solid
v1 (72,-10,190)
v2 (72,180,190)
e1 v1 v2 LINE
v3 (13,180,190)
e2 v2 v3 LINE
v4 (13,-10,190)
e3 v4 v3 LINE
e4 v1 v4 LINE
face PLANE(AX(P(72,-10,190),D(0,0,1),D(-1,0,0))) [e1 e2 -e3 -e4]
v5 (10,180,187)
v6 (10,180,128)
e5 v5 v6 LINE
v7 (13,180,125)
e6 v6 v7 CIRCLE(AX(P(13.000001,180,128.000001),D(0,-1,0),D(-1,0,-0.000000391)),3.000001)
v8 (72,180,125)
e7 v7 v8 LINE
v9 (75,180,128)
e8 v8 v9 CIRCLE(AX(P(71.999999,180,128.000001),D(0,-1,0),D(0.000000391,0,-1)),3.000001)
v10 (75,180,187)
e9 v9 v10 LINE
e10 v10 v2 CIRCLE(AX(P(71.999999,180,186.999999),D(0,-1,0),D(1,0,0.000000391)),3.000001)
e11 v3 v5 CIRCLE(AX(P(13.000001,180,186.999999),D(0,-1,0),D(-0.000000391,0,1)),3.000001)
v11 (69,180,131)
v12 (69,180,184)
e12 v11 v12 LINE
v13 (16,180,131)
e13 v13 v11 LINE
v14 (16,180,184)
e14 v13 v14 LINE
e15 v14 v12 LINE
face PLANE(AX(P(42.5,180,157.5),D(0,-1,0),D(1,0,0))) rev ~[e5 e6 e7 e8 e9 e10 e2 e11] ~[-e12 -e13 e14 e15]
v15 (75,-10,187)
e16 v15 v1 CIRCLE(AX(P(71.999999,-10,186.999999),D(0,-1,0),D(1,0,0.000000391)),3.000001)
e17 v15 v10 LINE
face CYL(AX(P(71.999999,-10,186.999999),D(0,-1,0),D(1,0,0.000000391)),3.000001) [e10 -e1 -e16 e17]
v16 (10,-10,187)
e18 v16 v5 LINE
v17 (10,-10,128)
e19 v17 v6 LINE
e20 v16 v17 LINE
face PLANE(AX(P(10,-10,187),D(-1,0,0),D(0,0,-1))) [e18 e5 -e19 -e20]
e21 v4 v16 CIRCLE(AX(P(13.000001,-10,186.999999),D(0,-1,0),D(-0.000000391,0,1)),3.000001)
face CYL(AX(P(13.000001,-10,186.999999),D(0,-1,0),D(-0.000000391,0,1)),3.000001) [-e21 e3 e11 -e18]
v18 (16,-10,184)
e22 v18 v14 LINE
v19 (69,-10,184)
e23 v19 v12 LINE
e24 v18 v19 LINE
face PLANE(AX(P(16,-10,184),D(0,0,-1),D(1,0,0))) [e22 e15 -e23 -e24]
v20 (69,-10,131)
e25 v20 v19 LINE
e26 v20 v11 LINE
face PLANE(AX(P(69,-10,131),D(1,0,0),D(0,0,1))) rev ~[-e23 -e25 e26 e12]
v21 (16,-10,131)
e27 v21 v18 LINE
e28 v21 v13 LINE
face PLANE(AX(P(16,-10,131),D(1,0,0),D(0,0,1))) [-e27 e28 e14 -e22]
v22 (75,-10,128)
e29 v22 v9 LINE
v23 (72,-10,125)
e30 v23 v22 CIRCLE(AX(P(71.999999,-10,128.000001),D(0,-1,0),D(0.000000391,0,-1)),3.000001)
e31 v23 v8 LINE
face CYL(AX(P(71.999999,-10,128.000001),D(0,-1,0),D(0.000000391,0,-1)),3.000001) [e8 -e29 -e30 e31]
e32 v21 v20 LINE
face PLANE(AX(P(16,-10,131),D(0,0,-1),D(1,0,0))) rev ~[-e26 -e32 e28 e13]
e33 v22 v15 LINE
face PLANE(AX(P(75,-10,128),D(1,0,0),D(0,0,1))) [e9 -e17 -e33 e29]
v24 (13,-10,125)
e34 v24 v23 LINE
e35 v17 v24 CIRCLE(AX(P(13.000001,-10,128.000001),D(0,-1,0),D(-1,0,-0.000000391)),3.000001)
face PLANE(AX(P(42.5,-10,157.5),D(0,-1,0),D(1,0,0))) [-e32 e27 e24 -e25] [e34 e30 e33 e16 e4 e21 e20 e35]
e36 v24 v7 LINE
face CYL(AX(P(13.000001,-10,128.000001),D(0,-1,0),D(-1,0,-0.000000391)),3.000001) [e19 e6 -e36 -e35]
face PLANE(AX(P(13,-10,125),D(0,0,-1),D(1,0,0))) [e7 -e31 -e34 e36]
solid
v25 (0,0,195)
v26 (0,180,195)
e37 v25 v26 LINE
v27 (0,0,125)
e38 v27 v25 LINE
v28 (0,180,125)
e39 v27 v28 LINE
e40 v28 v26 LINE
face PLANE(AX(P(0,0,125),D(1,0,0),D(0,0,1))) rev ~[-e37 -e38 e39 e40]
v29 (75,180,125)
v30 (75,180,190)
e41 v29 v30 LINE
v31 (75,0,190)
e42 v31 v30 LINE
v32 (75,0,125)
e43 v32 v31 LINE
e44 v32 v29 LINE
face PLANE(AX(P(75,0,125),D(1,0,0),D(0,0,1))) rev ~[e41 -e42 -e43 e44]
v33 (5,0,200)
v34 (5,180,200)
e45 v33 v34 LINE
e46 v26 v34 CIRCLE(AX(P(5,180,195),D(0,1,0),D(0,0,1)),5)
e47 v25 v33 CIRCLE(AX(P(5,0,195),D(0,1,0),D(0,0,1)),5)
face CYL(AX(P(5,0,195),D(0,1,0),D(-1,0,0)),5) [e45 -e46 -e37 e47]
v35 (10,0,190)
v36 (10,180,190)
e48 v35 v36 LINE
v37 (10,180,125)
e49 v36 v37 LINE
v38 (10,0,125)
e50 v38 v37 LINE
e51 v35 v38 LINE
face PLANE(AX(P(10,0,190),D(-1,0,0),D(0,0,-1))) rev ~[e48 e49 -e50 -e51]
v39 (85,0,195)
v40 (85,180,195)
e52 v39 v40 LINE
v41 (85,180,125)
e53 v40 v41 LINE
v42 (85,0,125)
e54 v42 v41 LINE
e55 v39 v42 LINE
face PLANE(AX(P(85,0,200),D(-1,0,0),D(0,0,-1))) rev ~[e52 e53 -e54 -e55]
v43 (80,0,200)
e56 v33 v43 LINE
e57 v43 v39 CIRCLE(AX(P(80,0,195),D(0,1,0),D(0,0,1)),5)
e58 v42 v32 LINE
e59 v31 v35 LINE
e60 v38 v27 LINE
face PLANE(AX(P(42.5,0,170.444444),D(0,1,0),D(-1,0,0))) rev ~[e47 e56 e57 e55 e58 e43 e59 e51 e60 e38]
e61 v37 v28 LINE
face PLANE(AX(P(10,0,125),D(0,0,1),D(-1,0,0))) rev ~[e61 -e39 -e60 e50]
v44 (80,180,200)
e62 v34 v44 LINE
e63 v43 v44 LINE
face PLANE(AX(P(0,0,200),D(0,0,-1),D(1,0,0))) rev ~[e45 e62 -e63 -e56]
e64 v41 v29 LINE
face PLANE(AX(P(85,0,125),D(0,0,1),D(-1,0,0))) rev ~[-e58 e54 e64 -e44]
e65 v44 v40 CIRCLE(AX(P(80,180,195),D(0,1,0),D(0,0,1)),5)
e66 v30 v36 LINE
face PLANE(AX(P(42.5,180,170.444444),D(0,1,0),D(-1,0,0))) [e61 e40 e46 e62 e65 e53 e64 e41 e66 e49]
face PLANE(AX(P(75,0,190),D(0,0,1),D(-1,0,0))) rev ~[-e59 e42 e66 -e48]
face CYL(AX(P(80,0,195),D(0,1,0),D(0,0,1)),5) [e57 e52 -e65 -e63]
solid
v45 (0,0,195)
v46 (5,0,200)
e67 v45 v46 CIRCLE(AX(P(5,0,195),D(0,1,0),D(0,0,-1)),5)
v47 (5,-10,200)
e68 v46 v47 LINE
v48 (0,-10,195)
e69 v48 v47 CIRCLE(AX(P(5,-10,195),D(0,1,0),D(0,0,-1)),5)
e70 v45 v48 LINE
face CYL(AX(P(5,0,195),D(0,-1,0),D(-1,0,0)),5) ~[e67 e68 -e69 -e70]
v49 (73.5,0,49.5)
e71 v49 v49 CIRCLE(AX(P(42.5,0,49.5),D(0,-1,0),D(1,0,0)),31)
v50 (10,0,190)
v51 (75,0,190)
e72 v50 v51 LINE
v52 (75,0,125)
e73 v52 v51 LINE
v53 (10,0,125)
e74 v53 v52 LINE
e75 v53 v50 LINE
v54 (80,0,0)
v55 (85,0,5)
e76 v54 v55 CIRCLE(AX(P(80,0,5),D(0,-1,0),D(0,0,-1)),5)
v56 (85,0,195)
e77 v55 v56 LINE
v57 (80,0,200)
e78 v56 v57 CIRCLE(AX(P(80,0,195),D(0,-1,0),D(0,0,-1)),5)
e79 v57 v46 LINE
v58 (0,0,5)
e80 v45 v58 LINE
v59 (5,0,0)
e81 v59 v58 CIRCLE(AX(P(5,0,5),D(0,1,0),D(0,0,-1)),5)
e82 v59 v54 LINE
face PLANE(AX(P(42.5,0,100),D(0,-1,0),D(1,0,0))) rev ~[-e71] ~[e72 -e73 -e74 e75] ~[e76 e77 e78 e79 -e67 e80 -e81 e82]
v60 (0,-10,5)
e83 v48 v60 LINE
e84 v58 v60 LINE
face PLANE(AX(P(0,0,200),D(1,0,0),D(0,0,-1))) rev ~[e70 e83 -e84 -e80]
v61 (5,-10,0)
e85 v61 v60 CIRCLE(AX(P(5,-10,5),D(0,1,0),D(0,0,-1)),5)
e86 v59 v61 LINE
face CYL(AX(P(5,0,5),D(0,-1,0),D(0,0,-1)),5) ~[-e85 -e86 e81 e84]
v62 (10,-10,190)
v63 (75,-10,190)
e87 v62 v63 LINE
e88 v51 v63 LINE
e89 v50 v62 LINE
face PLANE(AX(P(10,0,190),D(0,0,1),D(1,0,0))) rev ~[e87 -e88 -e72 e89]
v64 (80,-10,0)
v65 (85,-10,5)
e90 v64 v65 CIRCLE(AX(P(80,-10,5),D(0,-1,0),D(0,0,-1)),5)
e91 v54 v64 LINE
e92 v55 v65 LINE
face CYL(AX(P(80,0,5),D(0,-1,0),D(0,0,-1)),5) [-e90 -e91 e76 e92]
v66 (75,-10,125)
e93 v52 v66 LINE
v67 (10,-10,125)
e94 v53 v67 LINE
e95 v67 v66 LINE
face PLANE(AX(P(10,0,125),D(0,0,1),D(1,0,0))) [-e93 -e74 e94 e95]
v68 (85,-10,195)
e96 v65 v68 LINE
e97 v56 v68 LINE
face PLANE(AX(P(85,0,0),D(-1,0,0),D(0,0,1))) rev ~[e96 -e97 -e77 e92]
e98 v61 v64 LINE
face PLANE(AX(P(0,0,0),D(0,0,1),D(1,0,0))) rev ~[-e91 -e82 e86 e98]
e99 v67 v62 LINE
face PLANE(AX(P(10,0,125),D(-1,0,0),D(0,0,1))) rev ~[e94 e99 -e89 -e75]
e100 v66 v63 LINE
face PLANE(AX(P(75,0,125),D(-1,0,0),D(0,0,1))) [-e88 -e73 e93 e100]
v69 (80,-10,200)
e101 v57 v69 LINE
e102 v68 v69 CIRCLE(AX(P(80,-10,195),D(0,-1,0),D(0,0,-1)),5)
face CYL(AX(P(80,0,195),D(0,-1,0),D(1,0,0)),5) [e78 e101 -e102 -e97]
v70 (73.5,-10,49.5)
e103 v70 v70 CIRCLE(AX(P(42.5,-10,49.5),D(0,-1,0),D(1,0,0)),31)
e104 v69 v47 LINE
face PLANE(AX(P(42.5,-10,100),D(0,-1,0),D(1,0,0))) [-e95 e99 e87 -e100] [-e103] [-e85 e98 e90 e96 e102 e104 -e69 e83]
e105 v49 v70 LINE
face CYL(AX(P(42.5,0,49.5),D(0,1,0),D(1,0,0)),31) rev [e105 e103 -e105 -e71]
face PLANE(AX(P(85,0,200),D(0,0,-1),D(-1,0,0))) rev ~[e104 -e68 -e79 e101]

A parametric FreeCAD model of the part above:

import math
import FreeCAD as App
import Part
import Sketcher
from FreeCAD import Vector
Q = App.Units.Quantity


def edges_at(feature, points):
    """Names of the edges that pass closest to the given points."""
    edges = feature.Shape.Edges
    near = lambda p: min(range(len(edges)), key=lambda i: edges[i].distToShape(Part.Vertex(*p))[0])
    return sorted({f"Edge{near(p) + 1}" for p in points})

doc = App.newDocument("Part")
body = doc.addObject("PartDesign::Body", "Body")

# Sketch on XZ plane
sketch1 = doc.addObject("Sketcher::SketchObject", "Sketch")
body.addObject(sketch1)
sketch1.AttachmentSupport = (doc.XZ_Plane, [""])
sketch1.MapMode = "FlatFace"
sketch1.addGeometry(Part.LineSegment(Vector(0, 0, 0), Vector(85, 0, 0)), False)
sketch1.addGeometry(Part.LineSegment(Vector(85, 0, 0), Vector(85, 200, 0)), False)
sketch1.addGeometry(Part.LineSegment(Vector(85, 200, 0), Vector(0, 200, 0)), False)
sketch1.addGeometry(Part.LineSegment(Vector(0, 200, 0), Vector(0, 0, 0)), False)
sketch1.addGeometry(Part.Circle(Vector(42.5, 49.5, 0), Vector(0, 0, 1), 31), False)
sketch1.addGeometry(Part.LineSegment(Vector(75, 125, 0), Vector(10, 125, 0)), False)
sketch1.addGeometry(Part.LineSegment(Vector(10, 125, 0), Vector(10, 190, 0)), False)
sketch1.addGeometry(Part.LineSegment(Vector(10, 190, 0), Vector(75, 190, 0)), False)
sketch1.addGeometry(Part.LineSegment(Vector(75, 190, 0), Vector(75, 125, 0)), False)
sketch1.addConstraint(Sketcher.Constraint("Coincident", 0, 2, 1, 1))
sketch1.addConstraint(Sketcher.Constraint("Coincident", 1, 2, 2, 1))
sketch1.addConstraint(Sketcher.Constraint("Coincident", 2, 2, 3, 1))
sketch1.addConstraint(Sketcher.Constraint("Coincident", 3, 2, 0, 1))
sketch1.addConstraint(Sketcher.Constraint("Coincident", 5, 2, 6, 1))
sketch1.addConstraint(Sketcher.Constraint("Coincident", 6, 2, 7, 1))
sketch1.addConstraint(Sketcher.Constraint("Coincident", 7, 2, 8, 1))
sketch1.addConstraint(Sketcher.Constraint("Coincident", 8, 2, 5, 1))
sketch1.addConstraint(Sketcher.Constraint("Horizontal", 0))
sketch1.addConstraint(Sketcher.Constraint("Vertical", 1))
sketch1.addConstraint(Sketcher.Constraint("Horizontal", 2))
sketch1.addConstraint(Sketcher.Constraint("Vertical", 3))
sketch1.addConstraint(Sketcher.Constraint("Horizontal", 5))
sketch1.addConstraint(Sketcher.Constraint("Vertical", 6))
sketch1.addConstraint(Sketcher.Constraint("Horizontal", 7))
sketch1.addConstraint(Sketcher.Constraint("Vertical", 8))
sketch1.addConstraint(Sketcher.Constraint("Coincident", 3, 2, -1, 1))
sketch1.addConstraint(Sketcher.Constraint("Equal", 7, 6))
sketch1.addConstraint(Sketcher.Constraint("Diameter", 4, Q("62 mm")))
sketch1.addConstraint(Sketcher.Constraint("DistanceX", 0, 1, 0, 2, Q("85 mm")))
sketch1.addConstraint(Sketcher.Constraint("DistanceX", 5, 2, 5, 1, Q("65 mm")))
sketch1.addConstraint(Sketcher.Constraint("DistanceY", 1, 1, 1, 2, Q("200 mm")))
sketch1.addConstraint(Sketcher.Constraint("DistanceX", -1, 1, 5, 2, Q("10 mm")))
sketch1.addConstraint(Sketcher.Constraint("DistanceY", -1, 1, 5, 2, Q("125 mm")))
sketch1.addConstraint(Sketcher.Constraint("DistanceX", -1, 1, 4, 3, Q("42.5 mm")))
sketch1.addConstraint(Sketcher.Constraint("DistanceY", -1, 1, 4, 3, Q("49.5 mm")))
pad1 = doc.addObject("PartDesign::Pad", "Pad")
body.addObject(pad1)
pad1.Profile = sketch1
pad1.Length = 10
doc.recompute()

fillet = doc.addObject("PartDesign::Fillet", "Fillet")
body.addObject(fillet)
fillet.Base = (pad1, edges_at(pad1, [
    (85, -5, 200),
    (0, -5, 200),
    (85, -5, 0),
    (0, -5, 0),
]))
fillet.Radius = 5
body2 = doc.addObject("PartDesign::Body", "Body001")

# Sketch on XZ plane
sketch2 = doc.addObject("Sketcher::SketchObject", "Sketch001")
body2.addObject(sketch2)
sketch2.AttachmentSupport = (doc.getObject("XZ_Plane001"), [""])
sketch2.MapMode = "FlatFace"
sketch2.AttachmentOffset = App.Placement(Vector(0, 0, 10), App.Rotation())
sketch2.addGeometry(Part.ArcOfCircle(Part.Circle(Vector(13.000001, 128.000001, 0), Vector(0, 0, 1), 3.000001), math.radians(-179.999978), math.radians(-90.000022)), False)
sketch2.addGeometry(Part.LineSegment(Vector(13, 125, 0), Vector(72, 125, 0)), False)
sketch2.addGeometry(Part.ArcOfCircle(Part.Circle(Vector(71.999999, 128.000001, 0), Vector(0, 0, 1), 3.000001), math.radians(-89.999978), math.radians(-0.000022)), False)
sketch2.addGeometry(Part.LineSegment(Vector(75, 128, 0), Vector(75, 187, 0)), False)
sketch2.addGeometry(Part.ArcOfCircle(Part.Circle(Vector(71.999999, 186.999999, 0), Vector(0, 0, 1), 3.000001), math.radians(0.000022), math.radians(89.999978)), False)
sketch2.addGeometry(Part.LineSegment(Vector(72, 190, 0), Vector(13, 190, 0)), False)
sketch2.addGeometry(Part.ArcOfCircle(Part.Circle(Vector(13.000001, 186.999999, 0), Vector(0, 0, 1), 3.000001), math.radians(90.000022), math.radians(179.999978)), False)
sketch2.addGeometry(Part.LineSegment(Vector(10, 187, 0), Vector(10, 128, 0)), False)
sketch2.addGeometry(Part.LineSegment(Vector(69, 131, 0), Vector(16, 131, 0)), False)
sketch2.addGeometry(Part.LineSegment(Vector(16, 131, 0), Vector(16, 184, 0)), False)
sketch2.addGeometry(Part.LineSegment(Vector(16, 184, 0), Vector(69, 184, 0)), False)
sketch2.addGeometry(Part.LineSegment(Vector(69, 184, 0), Vector(69, 131, 0)), False)
sketch2.addConstraint(Sketcher.Constraint("Tangent", 0, 2, 1, 1))
sketch2.addConstraint(Sketcher.Constraint("Tangent", 1, 2, 2, 1))
sketch2.addConstraint(Sketcher.Constraint("Tangent", 2, 2, 3, 1))
sketch2.addConstraint(Sketcher.Constraint("Tangent", 3, 2, 4, 1))
sketch2.addConstraint(Sketcher.Constraint("Tangent", 4, 2, 5, 1))
sketch2.addConstraint(Sketcher.Constraint("Tangent", 5, 2, 6, 1))
sketch2.addConstraint(Sketcher.Constraint("Tangent", 6, 2, 7, 1))
sketch2.addConstraint(Sketcher.Constraint("Tangent", 7, 2, 0, 1))
sketch2.addConstraint(Sketcher.Constraint("Coincident", 8, 2, 9, 1))
sketch2.addConstraint(Sketcher.Constraint("Coincident", 9, 2, 10, 1))
sketch2.addConstraint(Sketcher.Constraint("Coincident", 10, 2, 11, 1))
sketch2.addConstraint(Sketcher.Constraint("Coincident", 11, 2, 8, 1))
sketch2.addConstraint(Sketcher.Constraint("Horizontal", 1))
sketch2.addConstraint(Sketcher.Constraint("Vertical", 3))
sketch2.addConstraint(Sketcher.Constraint("Horizontal", 5))
sketch2.addConstraint(Sketcher.Constraint("Vertical", 7))
sketch2.addConstraint(Sketcher.Constraint("Horizontal", 8))
sketch2.addConstraint(Sketcher.Constraint("Vertical", 9))
sketch2.addConstraint(Sketcher.Constraint("Horizontal", 10))
sketch2.addConstraint(Sketcher.Constraint("Vertical", 11))
sketch2.addConstraint(Sketcher.Constraint("Equal", 0, 2))
sketch2.addConstraint(Sketcher.Constraint("Equal", 2, 4))
sketch2.addConstraint(Sketcher.Constraint("Equal", 4, 6))
sketch2.addConstraint(Sketcher.Constraint("Equal", 5, 3))
sketch2.addConstraint(Sketcher.Constraint("Equal", 10, 9))
sketch2.addConstraint(Sketcher.Constraint("Radius", 0, Q("3.000001 mm")))
sketch2.addConstraint(Sketcher.Constraint("DistanceX", 1, 1, 1, 2, Q("59 mm")))
sketch2.addConstraint(Sketcher.Constraint("DistanceX", 8, 2, 8, 1, Q("53 mm")))
sketch2.addConstraint(Sketcher.Constraint("DistanceX", -1, 1, 0, 3, Q("13.000001 mm")))
sketch2.addConstraint(Sketcher.Constraint("DistanceY", -1, 1, 0, 3, Q("128.000001 mm")))
sketch2.addConstraint(Sketcher.Constraint("DistanceX", -1, 1, 8, 2, Q("16 mm")))
sketch2.addConstraint(Sketcher.Constraint("DistanceY", -1, 1, 8, 2, Q("131 mm")))
pad2 = doc.addObject("PartDesign::Pad", "Pad001")
body2.addObject(pad2)
pad2.Profile = sketch2
pad2.Length = 190
pad2.Reversed = True
body3 = doc.addObject("PartDesign::Body", "Body002")

# Sketch on XZ plane
sketch3 = doc.addObject("Sketcher::SketchObject", "Sketch002")
body3.addObject(sketch3)
sketch3.AttachmentSupport = (doc.getObject("XZ_Plane002"), [""])
sketch3.MapMode = "FlatFace"
sketch3.addGeometry(Part.LineSegment(Vector(85, 125, 0), Vector(75, 125, 0)), False)
sketch3.addGeometry(Part.LineSegment(Vector(75, 125, 0), Vector(75, 190, 0)), False)
sketch3.addGeometry(Part.LineSegment(Vector(75, 190, 0), Vector(10, 190, 0)), False)
sketch3.addGeometry(Part.LineSegment(Vector(10, 190, 0), Vector(10, 125, 0)), False)
sketch3.addGeometry(Part.LineSegment(Vector(10, 125, 0), Vector(0, 125, 0)), False)
sketch3.addGeometry(Part.LineSegment(Vector(0, 125, 0), Vector(0, 200, 0)), False)
sketch3.addGeometry(Part.LineSegment(Vector(0, 200, 0), Vector(85, 200, 0)), False)
sketch3.addGeometry(Part.LineSegment(Vector(85, 200, 0), Vector(85, 125, 0)), False)
sketch3.addConstraint(Sketcher.Constraint("Coincident", 0, 2, 1, 1))
sketch3.addConstraint(Sketcher.Constraint("Coincident", 1, 2, 2, 1))
sketch3.addConstraint(Sketcher.Constraint("Coincident", 2, 2, 3, 1))
sketch3.addConstraint(Sketcher.Constraint("Coincident", 3, 2, 4, 1))
sketch3.addConstraint(Sketcher.Constraint("Coincident", 4, 2, 5, 1))
sketch3.addConstraint(Sketcher.Constraint("Coincident", 5, 2, 6, 1))
sketch3.addConstraint(Sketcher.Constraint("Coincident", 6, 2, 7, 1))
sketch3.addConstraint(Sketcher.Constraint("Coincident", 7, 2, 0, 1))
sketch3.addConstraint(Sketcher.Constraint("Horizontal", 0))
sketch3.addConstraint(Sketcher.Constraint("Vertical", 1))
sketch3.addConstraint(Sketcher.Constraint("Horizontal", 2))
sketch3.addConstraint(Sketcher.Constraint("Vertical", 3))
sketch3.addConstraint(Sketcher.Constraint("Horizontal", 4))
sketch3.addConstraint(Sketcher.Constraint("Vertical", 5))
sketch3.addConstraint(Sketcher.Constraint("Horizontal", 6))
sketch3.addConstraint(Sketcher.Constraint("Vertical", 7))
sketch3.addConstraint(Sketcher.Constraint("PointOnObject", 4, 2, -2))
sketch3.addConstraint(Sketcher.Constraint("Horizontal", 0, 2, 3, 2))
sketch3.addConstraint(Sketcher.Constraint("Equal", 0, 4))
sketch3.addConstraint(Sketcher.Constraint("Equal", 2, 1))
sketch3.addConstraint(Sketcher.Constraint("DistanceX", 0, 2, 0, 1, Q("10 mm")))
sketch3.addConstraint(Sketcher.Constraint("DistanceX", 2, 2, 2, 1, Q("65 mm")))
sketch3.addConstraint(Sketcher.Constraint("DistanceY", 5, 1, 5, 2, Q("75 mm")))
sketch3.addConstraint(Sketcher.Constraint("DistanceY", -1, 1, 0, 2, Q("125 mm")))
pad3 = doc.addObject("PartDesign::Pad", "Pad002")
body3.addObject(pad3)
pad3.Profile = sketch3
pad3.Length = 180
pad3.Reversed = True
doc.recompute()

fillet2 = doc.addObject("PartDesign::Fillet", "Fillet001")
body3.addObject(fillet2)
fillet2.Base = (pad3, edges_at(pad3, [(85, 90, 200), (0, 90, 200)]))
fillet2.Radius = 5

doc.recompute()
